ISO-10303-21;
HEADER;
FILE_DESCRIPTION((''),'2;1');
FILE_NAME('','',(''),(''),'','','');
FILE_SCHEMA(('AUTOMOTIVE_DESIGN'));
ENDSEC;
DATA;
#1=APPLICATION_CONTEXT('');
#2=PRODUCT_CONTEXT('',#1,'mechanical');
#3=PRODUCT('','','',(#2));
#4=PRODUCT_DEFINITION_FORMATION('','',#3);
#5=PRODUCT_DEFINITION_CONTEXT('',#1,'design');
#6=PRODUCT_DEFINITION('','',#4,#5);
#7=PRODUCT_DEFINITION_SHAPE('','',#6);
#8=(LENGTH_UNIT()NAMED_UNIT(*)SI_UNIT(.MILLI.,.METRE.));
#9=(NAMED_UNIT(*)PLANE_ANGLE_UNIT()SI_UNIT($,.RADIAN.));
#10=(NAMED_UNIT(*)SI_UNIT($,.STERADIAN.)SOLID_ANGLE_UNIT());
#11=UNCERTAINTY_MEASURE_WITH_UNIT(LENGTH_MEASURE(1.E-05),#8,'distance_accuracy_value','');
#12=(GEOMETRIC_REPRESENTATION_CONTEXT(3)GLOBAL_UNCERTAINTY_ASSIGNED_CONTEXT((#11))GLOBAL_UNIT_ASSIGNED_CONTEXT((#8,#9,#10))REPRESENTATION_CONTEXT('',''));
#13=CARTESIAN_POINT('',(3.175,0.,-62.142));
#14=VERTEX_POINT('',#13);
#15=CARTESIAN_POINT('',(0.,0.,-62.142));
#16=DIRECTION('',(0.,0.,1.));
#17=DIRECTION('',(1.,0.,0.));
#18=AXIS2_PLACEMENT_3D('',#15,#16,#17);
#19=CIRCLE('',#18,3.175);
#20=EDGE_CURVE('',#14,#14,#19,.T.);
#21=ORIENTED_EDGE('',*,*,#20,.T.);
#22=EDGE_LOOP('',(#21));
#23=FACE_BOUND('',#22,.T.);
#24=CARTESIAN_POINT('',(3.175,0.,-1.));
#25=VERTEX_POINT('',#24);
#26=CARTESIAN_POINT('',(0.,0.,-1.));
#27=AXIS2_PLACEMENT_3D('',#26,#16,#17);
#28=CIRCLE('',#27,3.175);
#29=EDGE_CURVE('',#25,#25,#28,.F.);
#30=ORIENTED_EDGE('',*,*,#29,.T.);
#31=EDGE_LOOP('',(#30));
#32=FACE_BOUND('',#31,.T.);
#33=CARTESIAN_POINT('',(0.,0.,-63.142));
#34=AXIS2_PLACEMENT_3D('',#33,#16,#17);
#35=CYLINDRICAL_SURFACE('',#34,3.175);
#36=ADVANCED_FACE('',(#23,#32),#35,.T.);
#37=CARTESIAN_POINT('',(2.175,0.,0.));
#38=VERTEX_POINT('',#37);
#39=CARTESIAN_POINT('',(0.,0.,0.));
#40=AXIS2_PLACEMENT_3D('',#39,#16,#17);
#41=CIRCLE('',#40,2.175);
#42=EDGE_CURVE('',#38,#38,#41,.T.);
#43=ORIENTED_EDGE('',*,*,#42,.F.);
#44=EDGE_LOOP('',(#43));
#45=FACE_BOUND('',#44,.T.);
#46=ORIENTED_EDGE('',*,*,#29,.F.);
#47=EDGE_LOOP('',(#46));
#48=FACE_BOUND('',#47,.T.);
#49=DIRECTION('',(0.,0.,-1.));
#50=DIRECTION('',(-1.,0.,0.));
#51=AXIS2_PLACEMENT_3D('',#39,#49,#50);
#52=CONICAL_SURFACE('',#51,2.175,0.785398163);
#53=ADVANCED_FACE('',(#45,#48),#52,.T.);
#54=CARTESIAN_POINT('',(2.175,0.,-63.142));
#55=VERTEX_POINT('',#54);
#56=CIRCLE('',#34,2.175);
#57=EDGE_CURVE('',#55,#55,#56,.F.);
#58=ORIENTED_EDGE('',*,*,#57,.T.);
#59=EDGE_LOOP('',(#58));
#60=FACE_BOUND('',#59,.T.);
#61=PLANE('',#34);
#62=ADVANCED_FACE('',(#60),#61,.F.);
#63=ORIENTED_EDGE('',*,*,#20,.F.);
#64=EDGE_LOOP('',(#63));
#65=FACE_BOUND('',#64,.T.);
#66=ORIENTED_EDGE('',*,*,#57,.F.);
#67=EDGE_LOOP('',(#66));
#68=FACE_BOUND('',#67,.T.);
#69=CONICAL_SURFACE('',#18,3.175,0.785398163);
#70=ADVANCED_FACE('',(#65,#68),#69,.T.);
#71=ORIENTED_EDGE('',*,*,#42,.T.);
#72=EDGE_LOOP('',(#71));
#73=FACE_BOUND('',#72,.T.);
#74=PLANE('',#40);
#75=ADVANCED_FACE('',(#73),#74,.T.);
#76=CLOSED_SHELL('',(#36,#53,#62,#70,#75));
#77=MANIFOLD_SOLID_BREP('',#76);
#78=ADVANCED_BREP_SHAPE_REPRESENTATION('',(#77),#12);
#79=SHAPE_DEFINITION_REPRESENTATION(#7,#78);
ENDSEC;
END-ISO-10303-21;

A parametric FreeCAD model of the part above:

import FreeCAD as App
import Part
import Sketcher
Q = App.Units.Quantity


def edges_at(feature, points):
    """Names of the edges that pass closest to the given points."""
    edges = feature.Shape.Edges
    near = lambda p: min(range(len(edges)), key=lambda i: edges[i].distToShape(Part.Vertex(*p))[0])
    return sorted({f"Edge{near(p) + 1}" for p in points})

doc = App.newDocument("Part")
body = doc.addObject("PartDesign::Body", "Body")

sketch1 = doc.addObject("Sketcher::SketchObject", "Sketch")
body.addObject(sketch1)
sketch1.AttachmentSupport = (doc.XY_Plane, [""])
sketch1.MapMode = "FlatFace"
sketch1.addGeometry(Part.Circle(App.Vector(0, 0, 0), App.Vector(0, 0, 1), 3.2), False)
sketch1.addConstraint([
    Sketcher.Constraint("Coincident", 0, 3, -1, 1),
    Sketcher.Constraint("Diameter", 0, Q("6.35 mm")),
])
pad1 = doc.addObject("PartDesign::Pad", "Pad")
body.addObject(pad1)
pad1.Profile = sketch1
pad1.Length = 63.142
pad1.Reversed = True
doc.recompute()

chamfer = doc.addObject("PartDesign::Chamfer", "Chamfer")
body.addObject(chamfer)
chamfer.Base = (pad1, edges_at(pad1, [(-3.175, 0, 0), (-3.175, 0, -63.142)]))
chamfer.Size = 1

doc.recompute()
